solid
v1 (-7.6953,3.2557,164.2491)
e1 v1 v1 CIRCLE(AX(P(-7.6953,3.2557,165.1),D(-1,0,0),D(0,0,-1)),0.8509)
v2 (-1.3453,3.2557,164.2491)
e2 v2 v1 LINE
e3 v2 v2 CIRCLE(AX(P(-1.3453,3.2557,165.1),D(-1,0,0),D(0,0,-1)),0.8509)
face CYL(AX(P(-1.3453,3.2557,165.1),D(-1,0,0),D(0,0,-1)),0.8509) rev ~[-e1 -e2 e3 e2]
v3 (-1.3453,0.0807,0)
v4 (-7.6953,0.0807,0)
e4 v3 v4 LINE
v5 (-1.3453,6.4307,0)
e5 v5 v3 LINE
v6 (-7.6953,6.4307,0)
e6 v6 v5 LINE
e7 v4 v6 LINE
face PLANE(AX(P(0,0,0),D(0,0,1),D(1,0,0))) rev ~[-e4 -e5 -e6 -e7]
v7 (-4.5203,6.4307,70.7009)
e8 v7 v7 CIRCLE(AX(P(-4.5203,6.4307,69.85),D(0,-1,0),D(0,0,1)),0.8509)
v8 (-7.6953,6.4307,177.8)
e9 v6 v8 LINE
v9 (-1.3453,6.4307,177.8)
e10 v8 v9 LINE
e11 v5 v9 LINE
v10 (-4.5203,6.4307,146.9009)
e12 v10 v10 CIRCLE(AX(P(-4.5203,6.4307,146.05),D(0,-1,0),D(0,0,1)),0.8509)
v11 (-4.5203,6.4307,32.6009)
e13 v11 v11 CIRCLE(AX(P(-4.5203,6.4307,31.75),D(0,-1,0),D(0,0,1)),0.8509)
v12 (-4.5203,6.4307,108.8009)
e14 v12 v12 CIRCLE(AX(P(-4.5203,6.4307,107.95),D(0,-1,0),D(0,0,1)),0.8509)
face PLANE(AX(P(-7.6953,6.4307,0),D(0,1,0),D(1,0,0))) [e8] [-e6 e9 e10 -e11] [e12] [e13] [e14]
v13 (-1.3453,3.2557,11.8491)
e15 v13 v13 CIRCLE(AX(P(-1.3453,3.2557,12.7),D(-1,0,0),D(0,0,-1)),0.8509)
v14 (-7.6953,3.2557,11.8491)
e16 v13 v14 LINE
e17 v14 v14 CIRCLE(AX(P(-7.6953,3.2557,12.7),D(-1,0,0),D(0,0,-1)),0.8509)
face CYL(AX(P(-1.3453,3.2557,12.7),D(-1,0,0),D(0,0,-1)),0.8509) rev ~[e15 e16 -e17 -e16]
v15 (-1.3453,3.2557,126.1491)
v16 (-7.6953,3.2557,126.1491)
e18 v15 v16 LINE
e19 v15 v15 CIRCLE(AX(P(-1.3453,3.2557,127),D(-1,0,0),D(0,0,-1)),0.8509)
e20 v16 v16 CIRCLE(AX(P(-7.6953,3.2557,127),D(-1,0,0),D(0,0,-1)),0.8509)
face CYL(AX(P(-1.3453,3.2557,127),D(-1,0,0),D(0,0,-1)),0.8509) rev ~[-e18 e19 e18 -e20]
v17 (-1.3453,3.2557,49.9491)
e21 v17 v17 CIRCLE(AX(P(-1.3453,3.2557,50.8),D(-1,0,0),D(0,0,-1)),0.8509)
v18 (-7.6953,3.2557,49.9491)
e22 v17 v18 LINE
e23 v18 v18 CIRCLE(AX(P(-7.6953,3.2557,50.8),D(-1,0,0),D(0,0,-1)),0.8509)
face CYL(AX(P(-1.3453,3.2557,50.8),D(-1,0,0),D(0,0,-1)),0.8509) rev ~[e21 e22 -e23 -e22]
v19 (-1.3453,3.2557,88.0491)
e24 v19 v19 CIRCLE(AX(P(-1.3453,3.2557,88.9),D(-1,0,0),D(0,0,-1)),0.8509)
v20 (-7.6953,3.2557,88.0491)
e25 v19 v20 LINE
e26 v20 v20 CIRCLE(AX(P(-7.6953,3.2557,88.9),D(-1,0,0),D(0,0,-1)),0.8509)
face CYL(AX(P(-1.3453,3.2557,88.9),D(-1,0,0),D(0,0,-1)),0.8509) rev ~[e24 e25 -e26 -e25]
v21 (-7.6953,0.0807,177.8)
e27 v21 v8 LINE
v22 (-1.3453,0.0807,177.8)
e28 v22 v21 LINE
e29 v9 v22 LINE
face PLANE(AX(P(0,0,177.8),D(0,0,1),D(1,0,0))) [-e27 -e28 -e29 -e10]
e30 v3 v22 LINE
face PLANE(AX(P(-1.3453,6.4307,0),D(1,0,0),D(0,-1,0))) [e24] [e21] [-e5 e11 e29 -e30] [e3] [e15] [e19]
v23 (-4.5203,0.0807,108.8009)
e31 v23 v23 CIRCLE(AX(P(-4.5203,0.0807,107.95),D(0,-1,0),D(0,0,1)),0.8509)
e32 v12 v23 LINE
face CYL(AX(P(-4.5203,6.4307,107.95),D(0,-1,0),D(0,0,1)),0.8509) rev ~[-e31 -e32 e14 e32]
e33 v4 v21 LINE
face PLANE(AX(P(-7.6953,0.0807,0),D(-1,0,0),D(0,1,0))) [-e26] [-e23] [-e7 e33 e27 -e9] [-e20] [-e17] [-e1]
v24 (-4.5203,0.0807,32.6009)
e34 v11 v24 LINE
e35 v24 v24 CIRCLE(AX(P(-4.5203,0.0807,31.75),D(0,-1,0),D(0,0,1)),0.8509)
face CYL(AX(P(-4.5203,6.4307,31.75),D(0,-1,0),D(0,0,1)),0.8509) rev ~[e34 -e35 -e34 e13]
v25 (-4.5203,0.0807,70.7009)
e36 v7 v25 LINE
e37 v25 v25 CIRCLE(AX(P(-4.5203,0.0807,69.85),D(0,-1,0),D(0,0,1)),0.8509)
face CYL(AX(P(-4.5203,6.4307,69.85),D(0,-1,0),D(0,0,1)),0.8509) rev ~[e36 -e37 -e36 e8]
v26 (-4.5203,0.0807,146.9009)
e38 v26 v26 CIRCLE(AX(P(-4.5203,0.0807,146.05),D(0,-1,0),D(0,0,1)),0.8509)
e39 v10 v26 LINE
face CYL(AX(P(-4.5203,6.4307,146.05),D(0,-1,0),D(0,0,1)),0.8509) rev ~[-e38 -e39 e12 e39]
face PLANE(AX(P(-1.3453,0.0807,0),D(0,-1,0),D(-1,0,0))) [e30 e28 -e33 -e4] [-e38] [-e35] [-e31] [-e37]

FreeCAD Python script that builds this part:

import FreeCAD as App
import Part
import Sketcher

V = App.Vector
Q = App.Units.Quantity

doc = App.newDocument("Part")
params = doc.addObject("Spreadsheet::Sheet", "Params")
for row, (alias, value) in enumerate([
    ("sketch1_width", "0.25 in"),
    ("pad1_length", "7 in"),
    ("sketch2_diameter", "0.067 in"),
    ("hole_diameter", "0.067 in"),
    ("linearpattern_pitch", "1.5 in"),
    ("sketch3_diameter", "0.067 in"),
    ("hole2_diameter", "0.067 in"),
    ("linearpattern2_pitch", "1.5 in"),
], start=1):
    params.set(f"A{row}", alias)
    params.set(f"B{row}", "=" + value)
    params.setAlias(f"B{row}", alias)

body = doc.addObject("PartDesign::Body", "Body")

# Sketch on XY plane
sketch1 = body.newObject("Sketcher::SketchObject", "Sketch")
sketch1.AttachmentSupport = (doc.getObject("XY_Plane"), [""])
sketch1.MapMode = "FlatFace"
sketch1.addGeometry(Part.LineSegment(V(-1, 6, 0), V(-8, 6, 0)), False)
sketch1.addGeometry(Part.LineSegment(V(-8, 6, 0), V(-8, 0, 0)), False)
sketch1.addGeometry(Part.LineSegment(V(-8, 0, 0), V(-1, 0, 0)), False)
sketch1.addGeometry(Part.LineSegment(V(-1, 0, 0), V(-1, 6, 0)), False)
sketch1.addConstraint(Sketcher.Constraint("Coincident", 0, 2, 1, 1))
sketch1.addConstraint(Sketcher.Constraint("Coincident", 1, 2, 2, 1))
sketch1.addConstraint(Sketcher.Constraint("Coincident", 2, 2, 3, 1))
sketch1.addConstraint(Sketcher.Constraint("Coincident", 3, 2, 0, 1))
sketch1.addConstraint(Sketcher.Constraint("Horizontal", 0))
sketch1.addConstraint(Sketcher.Constraint("Vertical", 1))
sketch1.addConstraint(Sketcher.Constraint("Horizontal", 2))
sketch1.addConstraint(Sketcher.Constraint("Vertical", 3))
sketch1.addConstraint(Sketcher.Constraint("Equal", 2, 1))
sketch1.addConstraint(Sketcher.Constraint("DistanceX", 0, 2, 0, 1, Q("0.25 in")))
sketch1.addConstraint(Sketcher.Constraint("DistanceX", 0, 2, -1, 1, Q("7.6953 mm")))
sketch1.addConstraint(Sketcher.Constraint("DistanceY", -1, 1, 0, 2, Q("6.4307 mm")))
sketch1.setExpression("Constraints[9]", "Params.sketch1_width")
pad1 = body.newObject("PartDesign::Pad", "Pad")
pad1.Profile = sketch1
pad1.setExpression("Length", "Params.pad1_length")

# Sketch on YZ plane
sketch2 = body.newObject("Sketcher::SketchObject", "Sketch001")
sketch2.AttachmentSupport = (doc.getObject("YZ_Plane"), [""])
sketch2.MapMode = "FlatFace"
sketch2.AttachmentOffset = App.Placement(V(0, 0, -1.3453), App.Rotation())
sketch2.addGeometry(Part.Circle(V(3.3, 165.1, 0), V(0, 0, 1), 0.9), False)
sketch2.addConstraint(Sketcher.Constraint("Diameter", 0, Q("0.067 in")))
sketch2.addConstraint(Sketcher.Constraint("DistanceY", -1, 1, 0, 3, Q("6.5 in")))
sketch2.addConstraint(Sketcher.Constraint("DistanceX", -1, 1, 0, 3, Q("3.2557 mm")))
sketch2.setExpression("Constraints[0]", "Params.sketch2_diameter")
doc.recompute()
hole = body.newObject("PartDesign::Hole", "Hole")
hole.Profile = sketch2
hole.ThreadType = "None"
hole.setExpression("Diameter", "Params.hole_diameter")
hole.DepthType = "ThroughAll"
doc.recompute()

linearpattern = body.newObject("PartDesign::LinearPattern", "LinearPattern")
linearpattern.Originals = [hole]
linearpattern.Direction = (doc.getObject("Z_Axis"), [""])
linearpattern.Mode = "offset"
linearpattern.setExpression("Offset", "Params.linearpattern_pitch")
linearpattern.Occurrences = 5
linearpattern.Reversed = True
body.Tip = linearpattern

# Sketch on XZ plane
sketch3 = body.newObject("Sketcher::SketchObject", "Sketch002")
sketch3.AttachmentSupport = (doc.getObject("XZ_Plane"), [""])
sketch3.MapMode = "FlatFace"
sketch3.AttachmentOffset = App.Placement(V(0, 0, -6.4307), App.Rotation())
sketch3.addGeometry(Part.Circle(V(-4.5, 146.1, 0), V(0, 0, 1), 0.9), False)
sketch3.addConstraint(Sketcher.Constraint("Diameter", 0, Q("0.067 in")))
sketch3.addConstraint(Sketcher.Constraint("DistanceY", -1, 1, 0, 3, Q("5.75 in")))
sketch3.addConstraint(Sketcher.Constraint("DistanceX", 0, 3, -1, 1, Q("4.5203 mm")))
sketch3.setExpression("Constraints[0]", "Params.sketch3_diameter")
doc.recompute()
hole2 = body.newObject("PartDesign::Hole", "Hole001")
hole2.Profile = sketch3
hole2.ThreadType = "None"
hole2.setExpression("Diameter", "Params.hole2_diameter")
hole2.DepthType = "ThroughAll"
hole2.Reversed = True
doc.recompute()

linearpattern2 = body.newObject("PartDesign::LinearPattern", "LinearPattern001")
linearpattern2.Originals = [hole2]
linearpattern2.Direction = (doc.getObject("Z_Axis"), [""])
linearpattern2.Mode = "offset"
linearpattern2.setExpression("Offset", "Params.linearpattern2_pitch")
linearpattern2.Occurrences = 4
linearpattern2.Reversed = True
body.Tip = linearpattern2

doc.recompute()
